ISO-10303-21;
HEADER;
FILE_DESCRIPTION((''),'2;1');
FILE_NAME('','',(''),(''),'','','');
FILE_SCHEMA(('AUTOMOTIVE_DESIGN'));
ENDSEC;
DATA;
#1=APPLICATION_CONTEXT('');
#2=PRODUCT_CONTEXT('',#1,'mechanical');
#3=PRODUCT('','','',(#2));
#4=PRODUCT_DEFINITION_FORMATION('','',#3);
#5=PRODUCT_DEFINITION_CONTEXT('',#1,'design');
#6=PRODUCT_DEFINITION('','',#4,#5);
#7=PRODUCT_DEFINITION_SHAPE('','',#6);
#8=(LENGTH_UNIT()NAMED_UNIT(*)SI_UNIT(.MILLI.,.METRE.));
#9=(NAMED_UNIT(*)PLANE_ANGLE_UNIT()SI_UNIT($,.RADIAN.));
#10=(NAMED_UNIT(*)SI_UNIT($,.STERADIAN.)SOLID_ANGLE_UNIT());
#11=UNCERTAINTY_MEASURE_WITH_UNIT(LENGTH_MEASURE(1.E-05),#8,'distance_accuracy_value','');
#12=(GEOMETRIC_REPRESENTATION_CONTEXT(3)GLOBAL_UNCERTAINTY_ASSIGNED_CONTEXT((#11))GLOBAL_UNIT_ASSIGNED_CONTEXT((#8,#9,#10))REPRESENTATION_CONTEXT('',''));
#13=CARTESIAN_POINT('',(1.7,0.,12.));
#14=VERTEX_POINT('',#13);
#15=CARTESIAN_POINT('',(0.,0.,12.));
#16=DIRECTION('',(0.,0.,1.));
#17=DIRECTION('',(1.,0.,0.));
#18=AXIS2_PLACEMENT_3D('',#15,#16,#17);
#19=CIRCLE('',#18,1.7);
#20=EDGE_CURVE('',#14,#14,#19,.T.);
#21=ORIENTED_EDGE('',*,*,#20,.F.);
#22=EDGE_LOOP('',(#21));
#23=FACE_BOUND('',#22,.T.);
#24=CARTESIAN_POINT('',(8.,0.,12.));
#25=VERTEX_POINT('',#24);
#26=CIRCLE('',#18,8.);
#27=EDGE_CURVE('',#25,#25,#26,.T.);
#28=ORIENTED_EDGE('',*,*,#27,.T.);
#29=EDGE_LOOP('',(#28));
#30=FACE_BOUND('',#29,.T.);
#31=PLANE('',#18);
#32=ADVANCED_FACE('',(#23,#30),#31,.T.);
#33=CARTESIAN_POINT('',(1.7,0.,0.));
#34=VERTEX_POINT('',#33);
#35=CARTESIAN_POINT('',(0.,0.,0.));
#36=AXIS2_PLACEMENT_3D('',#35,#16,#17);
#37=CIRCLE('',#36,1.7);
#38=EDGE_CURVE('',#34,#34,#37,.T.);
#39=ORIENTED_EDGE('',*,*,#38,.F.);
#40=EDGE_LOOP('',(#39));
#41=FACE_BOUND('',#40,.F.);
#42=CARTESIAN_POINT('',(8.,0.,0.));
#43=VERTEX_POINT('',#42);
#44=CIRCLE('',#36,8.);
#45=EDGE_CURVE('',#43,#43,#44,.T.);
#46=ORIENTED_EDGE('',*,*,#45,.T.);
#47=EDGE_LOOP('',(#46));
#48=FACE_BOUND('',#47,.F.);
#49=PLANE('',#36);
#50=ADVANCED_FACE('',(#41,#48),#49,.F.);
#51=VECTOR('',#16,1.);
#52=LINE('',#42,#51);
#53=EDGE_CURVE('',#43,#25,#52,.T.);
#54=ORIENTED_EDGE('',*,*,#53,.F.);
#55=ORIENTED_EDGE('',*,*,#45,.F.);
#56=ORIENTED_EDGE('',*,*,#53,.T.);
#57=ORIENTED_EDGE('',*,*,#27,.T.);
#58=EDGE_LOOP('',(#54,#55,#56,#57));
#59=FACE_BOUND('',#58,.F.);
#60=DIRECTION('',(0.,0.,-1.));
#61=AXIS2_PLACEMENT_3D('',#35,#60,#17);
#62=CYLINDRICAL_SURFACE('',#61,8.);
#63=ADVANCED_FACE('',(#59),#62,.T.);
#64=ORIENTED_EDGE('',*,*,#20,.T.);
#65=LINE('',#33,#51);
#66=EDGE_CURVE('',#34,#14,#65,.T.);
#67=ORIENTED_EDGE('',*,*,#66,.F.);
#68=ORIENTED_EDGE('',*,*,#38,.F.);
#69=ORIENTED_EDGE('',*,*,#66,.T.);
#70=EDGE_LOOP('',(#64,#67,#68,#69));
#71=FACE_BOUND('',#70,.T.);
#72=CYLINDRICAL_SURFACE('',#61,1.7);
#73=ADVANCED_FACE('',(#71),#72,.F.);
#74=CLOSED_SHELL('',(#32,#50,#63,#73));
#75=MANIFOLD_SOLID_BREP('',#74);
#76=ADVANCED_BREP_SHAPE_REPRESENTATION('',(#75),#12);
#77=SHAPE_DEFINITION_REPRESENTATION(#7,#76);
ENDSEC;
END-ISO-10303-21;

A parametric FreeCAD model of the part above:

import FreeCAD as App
import Part
import Sketcher
Q = App.Units.Quantity

doc = App.newDocument("Part")
body = doc.addObject("PartDesign::Body", "Body")

sketch1 = body.newObject("Sketcher::SketchObject", "Sketch")
sketch1.AttachmentSupport = (doc.getObject("XY_Plane"), [""])
sketch1.MapMode = "FlatFace"
sketch1.addGeometry(Part.Circle(App.Vector(0, 0, 0), App.Vector(0, 0, 1), 8), False)
sketch1.addGeometry(Part.Circle(App.Vector(0, 0, 0), App.Vector(0, 0, 1), 1.7), False)
sketch1.addConstraint(Sketcher.Constraint("Coincident", 0, 3, -1, 1))
sketch1.addConstraint(Sketcher.Constraint("Coincident", 1, 3, -1, 1))
sketch1.addConstraint(Sketcher.Constraint("Diameter", 0, Q("16 mm")))
sketch1.addConstraint(Sketcher.Constraint("Diameter", 1, Q("3.4 mm")))
pad1 = body.newObject("PartDesign::Pad", "Pad")
pad1.Profile = sketch1
pad1.Length = 12

doc.recompute()
